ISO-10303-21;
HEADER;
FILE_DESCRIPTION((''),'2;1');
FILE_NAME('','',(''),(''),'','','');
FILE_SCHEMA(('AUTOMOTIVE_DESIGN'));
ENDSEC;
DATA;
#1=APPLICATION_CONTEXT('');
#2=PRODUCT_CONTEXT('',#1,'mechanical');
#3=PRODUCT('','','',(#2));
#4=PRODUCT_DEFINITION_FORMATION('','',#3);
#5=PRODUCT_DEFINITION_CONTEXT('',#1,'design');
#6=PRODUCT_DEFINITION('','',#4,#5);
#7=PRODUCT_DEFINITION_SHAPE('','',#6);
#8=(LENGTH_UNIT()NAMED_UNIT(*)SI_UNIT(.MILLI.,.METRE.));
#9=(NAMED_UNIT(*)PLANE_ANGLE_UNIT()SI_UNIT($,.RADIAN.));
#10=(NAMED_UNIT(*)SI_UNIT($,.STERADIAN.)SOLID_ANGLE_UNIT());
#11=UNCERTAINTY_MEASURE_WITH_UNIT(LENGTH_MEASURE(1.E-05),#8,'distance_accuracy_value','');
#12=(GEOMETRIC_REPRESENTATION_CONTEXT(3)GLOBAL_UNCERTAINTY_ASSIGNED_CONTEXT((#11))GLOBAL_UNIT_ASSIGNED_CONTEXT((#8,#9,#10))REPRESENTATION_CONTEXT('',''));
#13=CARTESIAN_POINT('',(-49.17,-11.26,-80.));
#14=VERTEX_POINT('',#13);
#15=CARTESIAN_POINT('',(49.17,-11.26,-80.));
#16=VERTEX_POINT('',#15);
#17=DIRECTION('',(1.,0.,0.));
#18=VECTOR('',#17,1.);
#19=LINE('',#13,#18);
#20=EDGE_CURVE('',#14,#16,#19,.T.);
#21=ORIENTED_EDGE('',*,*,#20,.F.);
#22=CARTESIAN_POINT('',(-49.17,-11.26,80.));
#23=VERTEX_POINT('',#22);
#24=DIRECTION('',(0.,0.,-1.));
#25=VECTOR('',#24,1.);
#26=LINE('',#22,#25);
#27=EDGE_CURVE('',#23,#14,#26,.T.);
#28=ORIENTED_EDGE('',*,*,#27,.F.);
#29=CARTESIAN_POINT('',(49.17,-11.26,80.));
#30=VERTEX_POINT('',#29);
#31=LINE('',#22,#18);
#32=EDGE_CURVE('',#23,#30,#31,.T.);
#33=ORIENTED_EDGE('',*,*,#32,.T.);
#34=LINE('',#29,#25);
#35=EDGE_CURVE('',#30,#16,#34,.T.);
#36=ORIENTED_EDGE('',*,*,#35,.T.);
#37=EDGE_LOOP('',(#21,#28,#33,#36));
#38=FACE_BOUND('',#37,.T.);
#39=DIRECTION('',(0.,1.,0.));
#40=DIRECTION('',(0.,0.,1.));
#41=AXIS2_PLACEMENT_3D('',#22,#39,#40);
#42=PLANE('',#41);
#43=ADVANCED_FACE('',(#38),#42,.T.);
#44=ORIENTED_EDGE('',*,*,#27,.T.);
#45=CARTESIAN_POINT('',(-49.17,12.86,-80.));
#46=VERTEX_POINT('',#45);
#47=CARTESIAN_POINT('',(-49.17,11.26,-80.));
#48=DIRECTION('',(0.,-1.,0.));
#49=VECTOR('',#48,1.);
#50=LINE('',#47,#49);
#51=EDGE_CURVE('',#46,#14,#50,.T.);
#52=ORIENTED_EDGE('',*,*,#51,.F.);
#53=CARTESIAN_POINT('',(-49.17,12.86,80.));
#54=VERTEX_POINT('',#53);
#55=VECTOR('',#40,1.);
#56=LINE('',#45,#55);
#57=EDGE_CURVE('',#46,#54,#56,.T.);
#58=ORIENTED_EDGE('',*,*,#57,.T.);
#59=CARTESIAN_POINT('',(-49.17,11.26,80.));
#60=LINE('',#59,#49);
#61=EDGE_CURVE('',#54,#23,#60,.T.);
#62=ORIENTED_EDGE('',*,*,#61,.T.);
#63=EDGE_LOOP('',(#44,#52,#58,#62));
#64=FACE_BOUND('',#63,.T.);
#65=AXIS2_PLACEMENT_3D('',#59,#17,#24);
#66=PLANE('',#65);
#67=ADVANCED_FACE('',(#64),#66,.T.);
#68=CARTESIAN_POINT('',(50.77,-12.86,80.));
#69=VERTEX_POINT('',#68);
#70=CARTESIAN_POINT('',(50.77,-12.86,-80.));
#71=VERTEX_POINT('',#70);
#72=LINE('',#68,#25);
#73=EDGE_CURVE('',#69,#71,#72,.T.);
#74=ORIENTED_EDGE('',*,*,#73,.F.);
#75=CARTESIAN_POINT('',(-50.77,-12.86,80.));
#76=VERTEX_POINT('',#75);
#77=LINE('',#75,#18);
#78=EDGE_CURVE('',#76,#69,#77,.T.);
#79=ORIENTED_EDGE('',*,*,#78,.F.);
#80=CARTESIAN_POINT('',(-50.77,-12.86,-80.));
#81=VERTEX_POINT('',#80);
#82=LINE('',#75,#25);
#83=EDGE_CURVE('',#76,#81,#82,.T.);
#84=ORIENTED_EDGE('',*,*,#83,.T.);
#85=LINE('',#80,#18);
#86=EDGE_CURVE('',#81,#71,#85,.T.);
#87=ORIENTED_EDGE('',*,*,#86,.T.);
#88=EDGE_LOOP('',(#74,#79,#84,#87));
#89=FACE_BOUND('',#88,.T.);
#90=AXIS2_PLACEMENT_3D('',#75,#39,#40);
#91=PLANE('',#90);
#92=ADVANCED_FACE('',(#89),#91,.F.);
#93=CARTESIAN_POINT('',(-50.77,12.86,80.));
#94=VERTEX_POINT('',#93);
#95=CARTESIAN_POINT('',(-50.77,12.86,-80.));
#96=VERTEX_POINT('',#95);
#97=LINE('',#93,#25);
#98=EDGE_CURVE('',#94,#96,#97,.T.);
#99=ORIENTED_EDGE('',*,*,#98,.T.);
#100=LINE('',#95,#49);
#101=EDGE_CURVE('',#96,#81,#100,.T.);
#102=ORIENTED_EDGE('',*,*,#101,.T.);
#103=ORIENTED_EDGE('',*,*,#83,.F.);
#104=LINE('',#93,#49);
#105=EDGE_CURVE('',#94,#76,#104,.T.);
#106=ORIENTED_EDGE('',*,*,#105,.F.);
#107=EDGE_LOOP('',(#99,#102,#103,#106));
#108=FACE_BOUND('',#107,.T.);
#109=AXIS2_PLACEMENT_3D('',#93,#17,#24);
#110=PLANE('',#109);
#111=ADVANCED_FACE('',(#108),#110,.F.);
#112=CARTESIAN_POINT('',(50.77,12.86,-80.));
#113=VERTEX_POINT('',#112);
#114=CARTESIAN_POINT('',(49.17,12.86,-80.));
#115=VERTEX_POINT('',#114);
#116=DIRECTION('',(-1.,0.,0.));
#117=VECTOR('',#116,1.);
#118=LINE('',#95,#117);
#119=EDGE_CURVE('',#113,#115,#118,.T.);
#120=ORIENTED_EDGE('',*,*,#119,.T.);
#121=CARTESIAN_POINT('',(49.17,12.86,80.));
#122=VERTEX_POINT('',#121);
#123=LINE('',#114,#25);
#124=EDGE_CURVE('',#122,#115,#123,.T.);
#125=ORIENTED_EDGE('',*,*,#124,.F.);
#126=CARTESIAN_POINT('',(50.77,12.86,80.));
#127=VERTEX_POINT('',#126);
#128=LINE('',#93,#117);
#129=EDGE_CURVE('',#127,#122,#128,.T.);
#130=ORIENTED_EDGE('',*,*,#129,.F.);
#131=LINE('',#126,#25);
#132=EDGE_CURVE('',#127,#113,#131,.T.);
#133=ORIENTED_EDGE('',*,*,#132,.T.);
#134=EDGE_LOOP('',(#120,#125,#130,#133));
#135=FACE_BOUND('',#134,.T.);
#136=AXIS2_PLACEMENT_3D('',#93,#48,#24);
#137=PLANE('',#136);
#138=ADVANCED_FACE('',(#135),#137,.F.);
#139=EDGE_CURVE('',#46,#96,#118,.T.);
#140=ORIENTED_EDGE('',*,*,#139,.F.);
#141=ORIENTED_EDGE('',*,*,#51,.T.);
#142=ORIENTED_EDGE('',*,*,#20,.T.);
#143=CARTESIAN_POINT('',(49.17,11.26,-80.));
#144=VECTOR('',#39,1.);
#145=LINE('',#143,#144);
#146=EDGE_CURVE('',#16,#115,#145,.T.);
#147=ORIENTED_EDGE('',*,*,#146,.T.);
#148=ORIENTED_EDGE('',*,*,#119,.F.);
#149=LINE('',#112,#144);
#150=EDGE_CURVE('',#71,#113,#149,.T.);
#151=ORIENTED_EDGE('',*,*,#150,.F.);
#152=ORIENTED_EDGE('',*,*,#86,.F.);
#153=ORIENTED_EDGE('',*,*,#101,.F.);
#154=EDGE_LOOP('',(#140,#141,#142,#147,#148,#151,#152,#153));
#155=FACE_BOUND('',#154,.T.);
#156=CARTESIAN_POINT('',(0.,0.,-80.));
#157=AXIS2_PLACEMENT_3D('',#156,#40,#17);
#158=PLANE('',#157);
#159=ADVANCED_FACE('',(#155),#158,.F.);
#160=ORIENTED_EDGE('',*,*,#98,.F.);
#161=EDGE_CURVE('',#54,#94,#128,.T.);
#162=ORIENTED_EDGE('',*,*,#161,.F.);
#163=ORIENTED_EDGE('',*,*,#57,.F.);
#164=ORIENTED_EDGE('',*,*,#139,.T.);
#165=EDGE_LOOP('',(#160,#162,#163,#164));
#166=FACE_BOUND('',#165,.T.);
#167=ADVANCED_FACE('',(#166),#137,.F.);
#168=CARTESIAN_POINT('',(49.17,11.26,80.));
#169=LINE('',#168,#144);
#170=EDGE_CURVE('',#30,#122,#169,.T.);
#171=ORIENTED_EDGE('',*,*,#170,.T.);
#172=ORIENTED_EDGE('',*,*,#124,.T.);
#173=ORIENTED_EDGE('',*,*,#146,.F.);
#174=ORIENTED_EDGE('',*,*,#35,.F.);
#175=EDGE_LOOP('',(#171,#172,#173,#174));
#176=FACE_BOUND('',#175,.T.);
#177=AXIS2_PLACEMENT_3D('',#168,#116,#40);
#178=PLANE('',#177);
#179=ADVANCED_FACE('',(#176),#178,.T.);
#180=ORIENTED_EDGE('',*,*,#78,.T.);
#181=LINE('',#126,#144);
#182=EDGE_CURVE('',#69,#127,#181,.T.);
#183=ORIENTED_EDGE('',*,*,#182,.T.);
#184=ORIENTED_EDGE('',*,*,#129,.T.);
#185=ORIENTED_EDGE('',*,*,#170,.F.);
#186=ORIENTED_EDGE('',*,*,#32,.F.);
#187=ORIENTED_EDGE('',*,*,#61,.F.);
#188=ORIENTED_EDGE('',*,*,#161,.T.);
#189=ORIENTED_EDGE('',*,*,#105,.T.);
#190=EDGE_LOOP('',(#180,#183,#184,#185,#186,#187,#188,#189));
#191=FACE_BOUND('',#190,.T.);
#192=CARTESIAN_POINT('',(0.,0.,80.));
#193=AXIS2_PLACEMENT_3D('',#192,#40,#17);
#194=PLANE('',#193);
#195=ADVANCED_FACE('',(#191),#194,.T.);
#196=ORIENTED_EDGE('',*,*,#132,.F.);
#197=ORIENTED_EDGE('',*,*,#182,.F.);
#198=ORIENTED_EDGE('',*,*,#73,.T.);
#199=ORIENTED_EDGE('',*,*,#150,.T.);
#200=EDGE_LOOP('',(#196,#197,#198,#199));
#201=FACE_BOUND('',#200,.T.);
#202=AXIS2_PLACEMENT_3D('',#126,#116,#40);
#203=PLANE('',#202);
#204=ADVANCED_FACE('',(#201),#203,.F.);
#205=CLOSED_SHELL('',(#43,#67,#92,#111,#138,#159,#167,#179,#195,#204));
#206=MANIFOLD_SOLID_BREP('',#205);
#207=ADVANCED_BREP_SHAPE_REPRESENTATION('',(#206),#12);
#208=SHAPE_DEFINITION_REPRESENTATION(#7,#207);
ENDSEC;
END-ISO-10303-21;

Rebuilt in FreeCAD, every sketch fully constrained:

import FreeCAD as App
import Part
import Sketcher

V = App.Vector


def add_polygon(sketch, points):
    """Adds a closed chain of lines whose ends are joined by coincident constraints."""
    first, n = sketch.GeometryCount, len(points)
    for a, b in zip(points, points[1:] + points[:1]):
        sketch.addGeometry(Part.LineSegment(App.Vector(*a, 0), App.Vector(*b, 0)), False)
    for i in range(n):
        sketch.addConstraint(Sketcher.Constraint("Coincident", first + i, 2, first + (i + 1) % n, 1))

doc = App.newDocument("Part")
body = doc.addObject("PartDesign::Body", "Body")

sketch1 = body.newObject("Sketcher::SketchObject", "Sketch")
sketch1.AttachmentSupport = (doc.getObject("XY_Plane"), [""])
sketch1.MapMode = "FlatFace"
add_polygon(sketch1, [(-51, 13), (-51, -13), (51, -13), (51, 13)])
add_polygon(sketch1, [(49, -11), (-49, -11), (-49, 11), (49, 11)])
sketch1.addConstraint(Sketcher.Constraint("Vertical", 0))
sketch1.addConstraint(Sketcher.Constraint("Horizontal", 1))
sketch1.addConstraint(Sketcher.Constraint("Vertical", 2))
sketch1.addConstraint(Sketcher.Constraint("Horizontal", 3))
sketch1.addConstraint(Sketcher.Constraint("Horizontal", 4))
sketch1.addConstraint(Sketcher.Constraint("Vertical", 5))
sketch1.addConstraint(Sketcher.Constraint("Horizontal", 6))
sketch1.addConstraint(Sketcher.Constraint("Vertical", 7))
sketch1.addConstraint(Sketcher.Constraint("Symmetric", 0, 2, 2, 2, -1, 1))
sketch1.addConstraint(Sketcher.Constraint("Symmetric", 4, 2, 6, 2, -1, 1))
sketch1.addConstraint(Sketcher.Constraint("DistanceX", 1, 1, 1, 2, 101.54))
sketch1.addConstraint(Sketcher.Constraint("DistanceX", 4, 2, 4, 1, 98.34))
sketch1.addConstraint(Sketcher.Constraint("DistanceY", 0, 2, 0, 1, 25.72))
sketch1.addConstraint(Sketcher.Constraint("DistanceY", 5, 1, 5, 2, 22.52))
pad1 = body.newObject("PartDesign::Pad", "Pad")
pad1.Profile = sketch1
pad1.Length = 160
pad1.Midplane = True

sketch2 = body.newObject("Sketcher::SketchObject", "Sketch001")
sketch2.AttachmentSupport = (doc.getObject("XZ_Plane"), [""])
sketch2.MapMode = "FlatFace"
sketch2.AttachmentOffset = App.Placement(V(0, 0, -12.86), App.Rotation())
add_polygon(sketch2, [(-49, -80), (-49, 80), (49, 80), (49, -80)])
sketch2.addConstraint(Sketcher.Constraint("Vertical", 0))
sketch2.addConstraint(Sketcher.Constraint("Horizontal", 1))
sketch2.addConstraint(Sketcher.Constraint("Vertical", 2))
sketch2.addConstraint(Sketcher.Constraint("Horizontal", 3))
sketch2.addConstraint(Sketcher.Constraint("Symmetric", 0, 2, 2, 2, -1, 1))
sketch2.addConstraint(Sketcher.Constraint("DistanceY", 0, 1, 0, 2, 160.0))
sketch2.addConstraint(Sketcher.Constraint("DistanceX", 1, 1, 1, 2, 98.34))
pocket1 = body.newObject("PartDesign::Pocket", "Pocket")
pocket1.Profile = sketch2
pocket1.Length = 11.1
pocket1.Reversed = True

doc.recompute()
